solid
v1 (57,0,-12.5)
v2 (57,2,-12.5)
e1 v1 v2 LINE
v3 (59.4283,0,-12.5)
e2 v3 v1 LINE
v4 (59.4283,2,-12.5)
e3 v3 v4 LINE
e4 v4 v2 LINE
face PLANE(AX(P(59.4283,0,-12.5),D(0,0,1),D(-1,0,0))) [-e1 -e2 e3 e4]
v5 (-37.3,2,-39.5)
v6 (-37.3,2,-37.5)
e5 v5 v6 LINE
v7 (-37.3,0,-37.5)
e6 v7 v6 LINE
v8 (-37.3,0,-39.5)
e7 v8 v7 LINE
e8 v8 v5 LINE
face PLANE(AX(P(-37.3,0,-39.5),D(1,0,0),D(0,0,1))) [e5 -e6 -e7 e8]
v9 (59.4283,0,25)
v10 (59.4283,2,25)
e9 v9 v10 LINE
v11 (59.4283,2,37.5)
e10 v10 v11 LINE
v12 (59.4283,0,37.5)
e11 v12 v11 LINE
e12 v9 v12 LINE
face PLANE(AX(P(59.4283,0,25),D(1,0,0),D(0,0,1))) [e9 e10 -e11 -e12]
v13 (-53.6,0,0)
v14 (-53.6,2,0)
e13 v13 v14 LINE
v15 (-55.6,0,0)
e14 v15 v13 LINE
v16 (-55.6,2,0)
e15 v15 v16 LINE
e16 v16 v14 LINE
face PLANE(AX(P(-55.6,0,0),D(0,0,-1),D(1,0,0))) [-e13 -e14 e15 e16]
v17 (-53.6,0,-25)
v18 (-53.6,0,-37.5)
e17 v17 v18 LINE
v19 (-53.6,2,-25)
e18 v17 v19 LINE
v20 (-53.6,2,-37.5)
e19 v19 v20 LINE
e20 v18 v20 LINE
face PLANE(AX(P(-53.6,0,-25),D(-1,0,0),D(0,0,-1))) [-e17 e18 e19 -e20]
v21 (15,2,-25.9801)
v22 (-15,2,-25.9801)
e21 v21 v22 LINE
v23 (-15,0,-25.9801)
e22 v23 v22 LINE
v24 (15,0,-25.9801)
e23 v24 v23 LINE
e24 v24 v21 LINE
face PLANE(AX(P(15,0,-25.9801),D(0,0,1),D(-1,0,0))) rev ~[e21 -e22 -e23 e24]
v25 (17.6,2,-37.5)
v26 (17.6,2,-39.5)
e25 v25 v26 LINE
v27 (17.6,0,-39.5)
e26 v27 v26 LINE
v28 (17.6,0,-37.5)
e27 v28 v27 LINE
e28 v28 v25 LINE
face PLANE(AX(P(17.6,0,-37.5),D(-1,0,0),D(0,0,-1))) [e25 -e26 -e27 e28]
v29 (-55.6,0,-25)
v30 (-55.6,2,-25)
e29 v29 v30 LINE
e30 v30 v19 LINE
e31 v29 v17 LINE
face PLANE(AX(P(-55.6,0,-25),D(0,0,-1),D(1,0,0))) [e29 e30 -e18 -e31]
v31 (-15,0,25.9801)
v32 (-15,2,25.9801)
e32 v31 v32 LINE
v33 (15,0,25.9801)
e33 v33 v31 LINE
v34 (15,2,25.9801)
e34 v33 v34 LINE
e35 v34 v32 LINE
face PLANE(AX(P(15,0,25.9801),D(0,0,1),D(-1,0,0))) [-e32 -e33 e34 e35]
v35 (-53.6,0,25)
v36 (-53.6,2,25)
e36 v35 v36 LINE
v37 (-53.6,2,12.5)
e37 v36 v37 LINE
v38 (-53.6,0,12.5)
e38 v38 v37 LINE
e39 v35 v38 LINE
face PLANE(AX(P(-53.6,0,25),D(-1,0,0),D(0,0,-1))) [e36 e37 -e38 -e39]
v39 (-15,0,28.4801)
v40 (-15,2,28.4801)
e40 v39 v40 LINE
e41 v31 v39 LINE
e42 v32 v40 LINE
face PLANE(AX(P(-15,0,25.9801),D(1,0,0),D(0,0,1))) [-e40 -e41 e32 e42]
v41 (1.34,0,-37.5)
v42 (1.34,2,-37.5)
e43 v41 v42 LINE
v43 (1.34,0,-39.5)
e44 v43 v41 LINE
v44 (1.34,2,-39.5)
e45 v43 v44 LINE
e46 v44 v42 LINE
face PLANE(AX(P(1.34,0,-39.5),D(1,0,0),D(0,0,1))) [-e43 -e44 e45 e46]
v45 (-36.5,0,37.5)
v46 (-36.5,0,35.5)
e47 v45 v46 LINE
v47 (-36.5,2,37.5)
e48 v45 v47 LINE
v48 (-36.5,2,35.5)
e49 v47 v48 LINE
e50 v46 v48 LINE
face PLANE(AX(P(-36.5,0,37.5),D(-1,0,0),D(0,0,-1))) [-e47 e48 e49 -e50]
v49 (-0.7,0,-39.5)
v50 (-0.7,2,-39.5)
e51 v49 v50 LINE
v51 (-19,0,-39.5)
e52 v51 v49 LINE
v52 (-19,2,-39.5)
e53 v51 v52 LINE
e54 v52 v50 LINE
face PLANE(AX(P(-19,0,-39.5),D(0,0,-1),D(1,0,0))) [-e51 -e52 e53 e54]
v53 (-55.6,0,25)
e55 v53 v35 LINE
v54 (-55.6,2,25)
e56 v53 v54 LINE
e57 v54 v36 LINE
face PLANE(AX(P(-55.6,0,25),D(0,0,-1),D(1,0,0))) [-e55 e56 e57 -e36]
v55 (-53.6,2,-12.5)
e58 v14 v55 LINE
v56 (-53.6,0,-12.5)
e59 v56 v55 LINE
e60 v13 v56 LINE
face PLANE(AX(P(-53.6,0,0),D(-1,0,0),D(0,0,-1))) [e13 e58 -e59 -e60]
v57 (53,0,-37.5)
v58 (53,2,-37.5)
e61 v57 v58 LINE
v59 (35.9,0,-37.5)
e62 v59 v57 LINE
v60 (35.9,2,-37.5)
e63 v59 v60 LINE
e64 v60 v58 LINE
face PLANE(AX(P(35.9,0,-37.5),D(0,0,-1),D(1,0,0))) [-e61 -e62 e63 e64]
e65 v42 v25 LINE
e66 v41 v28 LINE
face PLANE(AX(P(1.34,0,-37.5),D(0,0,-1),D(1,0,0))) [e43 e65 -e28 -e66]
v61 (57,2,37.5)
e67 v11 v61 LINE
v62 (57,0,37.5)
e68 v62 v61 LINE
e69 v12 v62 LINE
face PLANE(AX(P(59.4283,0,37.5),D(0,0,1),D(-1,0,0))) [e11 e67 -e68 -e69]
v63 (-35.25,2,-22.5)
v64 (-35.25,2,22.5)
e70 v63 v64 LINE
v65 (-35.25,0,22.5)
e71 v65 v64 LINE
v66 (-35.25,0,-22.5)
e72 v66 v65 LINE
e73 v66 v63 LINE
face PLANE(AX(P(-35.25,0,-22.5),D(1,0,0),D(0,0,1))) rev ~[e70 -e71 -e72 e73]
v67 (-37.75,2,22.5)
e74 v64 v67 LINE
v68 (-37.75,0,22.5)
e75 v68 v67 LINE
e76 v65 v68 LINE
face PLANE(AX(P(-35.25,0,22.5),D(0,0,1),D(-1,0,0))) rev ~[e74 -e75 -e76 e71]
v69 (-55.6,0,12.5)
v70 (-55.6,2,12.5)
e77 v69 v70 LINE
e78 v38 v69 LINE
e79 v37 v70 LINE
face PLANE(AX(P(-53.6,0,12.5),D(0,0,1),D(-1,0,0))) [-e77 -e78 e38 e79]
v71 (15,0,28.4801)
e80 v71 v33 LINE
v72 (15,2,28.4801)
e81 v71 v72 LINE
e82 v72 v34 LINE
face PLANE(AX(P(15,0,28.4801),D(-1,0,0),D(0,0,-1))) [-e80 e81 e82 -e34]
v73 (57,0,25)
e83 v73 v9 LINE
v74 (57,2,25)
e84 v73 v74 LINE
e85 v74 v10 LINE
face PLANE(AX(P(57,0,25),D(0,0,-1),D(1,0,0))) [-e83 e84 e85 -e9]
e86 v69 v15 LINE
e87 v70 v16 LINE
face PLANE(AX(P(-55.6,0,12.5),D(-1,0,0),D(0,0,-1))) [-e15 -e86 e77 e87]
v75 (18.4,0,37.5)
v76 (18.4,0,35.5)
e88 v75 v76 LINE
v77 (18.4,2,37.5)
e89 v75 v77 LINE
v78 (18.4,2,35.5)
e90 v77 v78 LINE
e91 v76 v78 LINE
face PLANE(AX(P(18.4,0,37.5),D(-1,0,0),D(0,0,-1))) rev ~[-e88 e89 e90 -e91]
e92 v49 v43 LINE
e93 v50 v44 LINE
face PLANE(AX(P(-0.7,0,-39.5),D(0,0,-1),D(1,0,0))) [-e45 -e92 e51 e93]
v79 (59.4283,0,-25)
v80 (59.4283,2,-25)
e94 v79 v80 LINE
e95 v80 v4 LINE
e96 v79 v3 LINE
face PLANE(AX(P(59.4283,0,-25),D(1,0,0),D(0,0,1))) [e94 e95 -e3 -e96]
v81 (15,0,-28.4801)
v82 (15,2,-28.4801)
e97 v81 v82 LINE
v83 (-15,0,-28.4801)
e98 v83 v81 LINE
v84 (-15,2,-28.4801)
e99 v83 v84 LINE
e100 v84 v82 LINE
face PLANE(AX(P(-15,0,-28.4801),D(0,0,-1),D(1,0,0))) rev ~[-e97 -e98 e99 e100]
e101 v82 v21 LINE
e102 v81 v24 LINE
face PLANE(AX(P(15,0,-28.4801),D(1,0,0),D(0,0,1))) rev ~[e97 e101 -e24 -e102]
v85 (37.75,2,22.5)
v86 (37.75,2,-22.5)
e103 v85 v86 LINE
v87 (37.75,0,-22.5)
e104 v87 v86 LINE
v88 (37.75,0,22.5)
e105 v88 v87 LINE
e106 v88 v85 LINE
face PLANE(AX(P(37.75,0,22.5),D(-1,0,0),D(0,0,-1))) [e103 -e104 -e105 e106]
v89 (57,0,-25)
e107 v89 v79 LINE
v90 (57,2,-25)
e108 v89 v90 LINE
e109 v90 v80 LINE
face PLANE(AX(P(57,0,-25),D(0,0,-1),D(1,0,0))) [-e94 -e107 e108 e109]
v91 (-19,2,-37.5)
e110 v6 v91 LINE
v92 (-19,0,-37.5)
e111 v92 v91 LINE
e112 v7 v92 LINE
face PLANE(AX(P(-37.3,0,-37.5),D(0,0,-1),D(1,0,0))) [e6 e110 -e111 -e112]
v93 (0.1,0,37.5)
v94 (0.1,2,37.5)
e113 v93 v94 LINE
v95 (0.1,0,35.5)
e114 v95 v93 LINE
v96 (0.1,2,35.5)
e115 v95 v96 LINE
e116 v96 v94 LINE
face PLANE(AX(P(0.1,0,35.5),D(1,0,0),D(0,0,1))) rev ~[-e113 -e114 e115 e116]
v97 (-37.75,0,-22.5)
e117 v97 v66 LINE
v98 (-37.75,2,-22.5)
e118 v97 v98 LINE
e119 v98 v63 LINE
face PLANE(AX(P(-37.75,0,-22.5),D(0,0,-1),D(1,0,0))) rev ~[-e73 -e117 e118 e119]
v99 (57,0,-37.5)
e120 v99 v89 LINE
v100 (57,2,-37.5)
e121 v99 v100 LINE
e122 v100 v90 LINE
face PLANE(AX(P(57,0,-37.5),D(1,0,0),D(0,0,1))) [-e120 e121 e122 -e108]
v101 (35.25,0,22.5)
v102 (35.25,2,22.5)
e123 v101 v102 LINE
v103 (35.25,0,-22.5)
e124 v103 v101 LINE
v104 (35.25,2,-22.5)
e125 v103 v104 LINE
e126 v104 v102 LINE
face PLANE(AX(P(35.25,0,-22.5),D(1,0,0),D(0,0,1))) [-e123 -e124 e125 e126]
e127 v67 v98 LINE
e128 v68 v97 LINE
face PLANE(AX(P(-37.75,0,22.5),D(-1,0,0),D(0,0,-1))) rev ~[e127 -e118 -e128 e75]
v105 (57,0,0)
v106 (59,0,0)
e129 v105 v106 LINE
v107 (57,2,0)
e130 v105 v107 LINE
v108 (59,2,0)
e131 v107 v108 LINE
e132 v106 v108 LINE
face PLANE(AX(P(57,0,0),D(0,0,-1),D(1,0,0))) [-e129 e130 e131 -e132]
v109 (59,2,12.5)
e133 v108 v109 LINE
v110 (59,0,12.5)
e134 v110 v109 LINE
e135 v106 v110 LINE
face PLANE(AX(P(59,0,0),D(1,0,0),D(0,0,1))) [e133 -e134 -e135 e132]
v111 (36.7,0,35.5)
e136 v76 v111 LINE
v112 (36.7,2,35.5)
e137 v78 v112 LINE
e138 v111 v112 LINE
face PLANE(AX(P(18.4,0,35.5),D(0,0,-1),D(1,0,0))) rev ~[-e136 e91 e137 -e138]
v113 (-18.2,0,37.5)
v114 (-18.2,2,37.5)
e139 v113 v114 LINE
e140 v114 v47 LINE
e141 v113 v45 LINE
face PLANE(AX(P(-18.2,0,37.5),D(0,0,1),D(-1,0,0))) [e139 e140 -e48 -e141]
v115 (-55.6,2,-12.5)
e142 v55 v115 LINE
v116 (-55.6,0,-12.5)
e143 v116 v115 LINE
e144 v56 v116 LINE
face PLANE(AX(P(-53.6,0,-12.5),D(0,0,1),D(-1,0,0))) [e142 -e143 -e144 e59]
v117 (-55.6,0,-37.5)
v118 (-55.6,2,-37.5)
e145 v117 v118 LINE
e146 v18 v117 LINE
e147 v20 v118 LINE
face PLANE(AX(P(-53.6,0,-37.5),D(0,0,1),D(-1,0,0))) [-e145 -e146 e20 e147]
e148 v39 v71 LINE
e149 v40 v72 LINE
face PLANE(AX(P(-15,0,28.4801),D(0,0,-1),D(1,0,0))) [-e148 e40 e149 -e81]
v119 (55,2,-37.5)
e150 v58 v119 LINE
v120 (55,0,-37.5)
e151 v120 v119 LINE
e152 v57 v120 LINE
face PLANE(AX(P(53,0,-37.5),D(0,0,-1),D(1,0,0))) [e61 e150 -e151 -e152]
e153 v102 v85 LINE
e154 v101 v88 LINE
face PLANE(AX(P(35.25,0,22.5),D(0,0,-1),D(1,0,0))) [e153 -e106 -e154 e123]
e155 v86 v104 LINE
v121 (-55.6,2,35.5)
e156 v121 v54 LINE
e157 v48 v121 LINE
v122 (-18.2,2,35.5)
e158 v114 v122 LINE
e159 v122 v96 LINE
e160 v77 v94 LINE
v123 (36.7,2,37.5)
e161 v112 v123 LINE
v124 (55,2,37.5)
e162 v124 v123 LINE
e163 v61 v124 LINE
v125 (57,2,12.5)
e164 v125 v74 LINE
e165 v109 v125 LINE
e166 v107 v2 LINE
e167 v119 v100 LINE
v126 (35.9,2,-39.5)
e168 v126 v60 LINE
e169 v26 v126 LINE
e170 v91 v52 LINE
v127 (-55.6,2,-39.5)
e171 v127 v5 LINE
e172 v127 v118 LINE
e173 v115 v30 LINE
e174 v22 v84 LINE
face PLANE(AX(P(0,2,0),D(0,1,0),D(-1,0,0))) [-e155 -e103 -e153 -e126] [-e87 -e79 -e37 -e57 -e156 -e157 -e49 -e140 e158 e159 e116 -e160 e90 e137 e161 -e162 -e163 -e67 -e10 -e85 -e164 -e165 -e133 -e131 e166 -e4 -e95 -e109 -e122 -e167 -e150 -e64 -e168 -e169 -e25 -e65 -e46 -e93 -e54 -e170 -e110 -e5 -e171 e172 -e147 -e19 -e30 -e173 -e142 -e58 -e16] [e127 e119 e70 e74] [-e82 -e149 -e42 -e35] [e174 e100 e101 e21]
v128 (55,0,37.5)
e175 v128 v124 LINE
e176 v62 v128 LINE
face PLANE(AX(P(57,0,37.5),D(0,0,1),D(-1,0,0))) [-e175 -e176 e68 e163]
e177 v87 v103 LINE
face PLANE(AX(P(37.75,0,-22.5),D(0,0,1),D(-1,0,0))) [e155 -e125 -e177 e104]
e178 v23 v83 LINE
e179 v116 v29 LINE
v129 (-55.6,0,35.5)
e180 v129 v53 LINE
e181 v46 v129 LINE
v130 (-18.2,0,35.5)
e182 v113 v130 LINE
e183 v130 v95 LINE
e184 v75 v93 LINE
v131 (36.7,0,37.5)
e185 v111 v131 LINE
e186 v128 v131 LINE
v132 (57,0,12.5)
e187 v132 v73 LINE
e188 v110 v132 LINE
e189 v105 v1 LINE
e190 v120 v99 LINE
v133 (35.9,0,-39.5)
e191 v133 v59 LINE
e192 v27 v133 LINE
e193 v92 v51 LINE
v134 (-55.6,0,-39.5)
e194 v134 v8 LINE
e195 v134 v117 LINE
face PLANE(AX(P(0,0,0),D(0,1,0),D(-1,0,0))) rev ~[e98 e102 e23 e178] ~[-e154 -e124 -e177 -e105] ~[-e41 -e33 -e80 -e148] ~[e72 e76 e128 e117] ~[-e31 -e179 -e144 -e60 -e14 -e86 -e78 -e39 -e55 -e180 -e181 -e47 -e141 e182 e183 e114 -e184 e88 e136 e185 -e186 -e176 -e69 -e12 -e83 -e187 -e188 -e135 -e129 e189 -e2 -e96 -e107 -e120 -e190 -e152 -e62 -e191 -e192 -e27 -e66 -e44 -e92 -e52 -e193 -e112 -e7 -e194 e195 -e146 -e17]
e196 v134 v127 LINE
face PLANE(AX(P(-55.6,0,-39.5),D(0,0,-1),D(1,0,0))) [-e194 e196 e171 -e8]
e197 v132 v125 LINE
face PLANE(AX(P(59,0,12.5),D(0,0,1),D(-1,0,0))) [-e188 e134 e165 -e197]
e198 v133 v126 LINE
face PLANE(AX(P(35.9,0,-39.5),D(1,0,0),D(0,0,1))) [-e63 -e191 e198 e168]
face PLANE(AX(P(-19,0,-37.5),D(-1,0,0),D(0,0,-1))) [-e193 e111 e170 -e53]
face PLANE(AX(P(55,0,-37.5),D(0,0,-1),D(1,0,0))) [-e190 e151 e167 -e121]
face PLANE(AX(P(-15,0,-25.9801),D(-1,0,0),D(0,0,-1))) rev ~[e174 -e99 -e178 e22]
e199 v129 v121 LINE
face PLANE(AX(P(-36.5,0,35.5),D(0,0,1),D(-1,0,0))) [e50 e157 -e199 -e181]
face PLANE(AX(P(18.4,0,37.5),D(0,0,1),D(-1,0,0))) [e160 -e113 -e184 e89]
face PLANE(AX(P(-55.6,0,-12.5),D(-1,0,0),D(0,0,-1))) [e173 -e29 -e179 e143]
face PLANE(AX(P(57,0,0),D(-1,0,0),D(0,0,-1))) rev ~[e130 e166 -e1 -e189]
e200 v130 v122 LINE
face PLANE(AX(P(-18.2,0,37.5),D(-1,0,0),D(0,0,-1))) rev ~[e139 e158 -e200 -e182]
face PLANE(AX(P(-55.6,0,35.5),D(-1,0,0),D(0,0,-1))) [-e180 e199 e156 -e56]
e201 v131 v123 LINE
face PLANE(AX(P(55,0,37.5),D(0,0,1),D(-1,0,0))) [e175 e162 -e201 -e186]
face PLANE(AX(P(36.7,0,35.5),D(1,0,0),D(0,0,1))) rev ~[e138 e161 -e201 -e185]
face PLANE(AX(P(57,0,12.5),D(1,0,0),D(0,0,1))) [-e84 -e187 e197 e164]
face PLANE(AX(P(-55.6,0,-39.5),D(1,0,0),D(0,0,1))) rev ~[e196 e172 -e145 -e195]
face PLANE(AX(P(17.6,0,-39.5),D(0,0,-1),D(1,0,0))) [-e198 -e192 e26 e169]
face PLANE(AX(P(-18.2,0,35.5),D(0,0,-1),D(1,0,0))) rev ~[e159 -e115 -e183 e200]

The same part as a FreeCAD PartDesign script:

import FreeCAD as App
import Part
import Sketcher
from FreeCAD import Vector


def add_polygon(sketch, points):
    """Adds a closed chain of lines whose ends are joined by coincident constraints."""
    first, n = sketch.GeometryCount, len(points)
    for a, b in zip(points, points[1:] + points[:1]):
        sketch.addGeometry(Part.LineSegment(App.Vector(*a, 0), App.Vector(*b, 0)), False)
    for i in range(n):
        sketch.addConstraint(Sketcher.Constraint("Coincident", first + i, 2, first + (i + 1) % n, 1))

doc = App.newDocument("Part")
body = doc.addObject("PartDesign::Body", "Body")

sketch1 = doc.addObject("Sketcher::SketchObject", "Sketch")
body.addObject(sketch1)
sketch1.AttachmentSupport = (doc.XZ_Plane, [""])
sketch1.MapMode = "FlatFace"
add_polygon(sketch1, [(-37.3, -39.5), (-55.6, -39.5), (-55.6, -37.5), (-53.6, -37.5), (-53.6, -25), (-55.6, -25), (-55.6, -12.5), (-53.6, -12.5), (-53.6, 0), (-55.6, 0), (-55.6, 12.5), (-53.6, 12.5), (-53.6, 25), (-55.6, 25), (-55.6, 35.5), (-36.5, 35.5), (-36.5, 37.5), (-18.2, 37.5), (-18.2, 35.5), (0.1, 35.5), (0.1, 37.5), (18.4, 37.5), (18.4, 35.5), (36.7, 35.5), (36.7, 37.5), (59.4, 37.5), (59.4, 25), (57, 25), (57, 12.5), (59, 12.5), (59, 0), (57, 0), (57, -12.5), (59.4, -12.5), (59.4, -25), (57, -25), (57, -37.5), (35.9, -37.5), (35.9, -39.5), (17.6, -39.5), (17.6, -37.5), (1.3, -37.5), (1.3, -39.5), (-19, -39.5), (-19, -37.5), (-37.3, -37.5)])
add_polygon(sketch1, [(-15, -26), (-15, -28.5), (15, -28.5), (15, -26)])
add_polygon(sketch1, [(35.2, -22.5), (37.8, -22.5), (37.8, 22.5), (35.2, 22.5)])
add_polygon(sketch1, [(-37.8, 22.5), (-37.8, -22.5), (-35.2, -22.5), (-35.2, 22.5)])
add_polygon(sketch1, [(15, 28.5), (-15, 28.5), (-15, 26), (15, 26)])
sketch1.addConstraint(Sketcher.Constraint("Horizontal", 0))
sketch1.addConstraint(Sketcher.Constraint("Vertical", 1))
sketch1.addConstraint(Sketcher.Constraint("Horizontal", 2))
sketch1.addConstraint(Sketcher.Constraint("Vertical", 3))
sketch1.addConstraint(Sketcher.Constraint("Horizontal", 4))
sketch1.addConstraint(Sketcher.Constraint("Vertical", 5))
sketch1.addConstraint(Sketcher.Constraint("Horizontal", 6))
sketch1.addConstraint(Sketcher.Constraint("Vertical", 7))
sketch1.addConstraint(Sketcher.Constraint("Horizontal", 8))
sketch1.addConstraint(Sketcher.Constraint("Vertical", 9))
sketch1.addConstraint(Sketcher.Constraint("Horizontal", 10))
sketch1.addConstraint(Sketcher.Constraint("Vertical", 11))
sketch1.addConstraint(Sketcher.Constraint("Horizontal", 12))
sketch1.addConstraint(Sketcher.Constraint("Vertical", 13))
sketch1.addConstraint(Sketcher.Constraint("Horizontal", 14))
sketch1.addConstraint(Sketcher.Constraint("Vertical", 15))
sketch1.addConstraint(Sketcher.Constraint("Horizontal", 16))
sketch1.addConstraint(Sketcher.Constraint("Vertical", 17))
sketch1.addConstraint(Sketcher.Constraint("Horizontal", 18))
sketch1.addConstraint(Sketcher.Constraint("Vertical", 19))
sketch1.addConstraint(Sketcher.Constraint("Horizontal", 20))
sketch1.addConstraint(Sketcher.Constraint("Vertical", 21))
sketch1.addConstraint(Sketcher.Constraint("Horizontal", 22))
sketch1.addConstraint(Sketcher.Constraint("Vertical", 23))
sketch1.addConstraint(Sketcher.Constraint("Horizontal", 24))
sketch1.addConstraint(Sketcher.Constraint("Vertical", 25))
sketch1.addConstraint(Sketcher.Constraint("Horizontal", 26))
sketch1.addConstraint(Sketcher.Constraint("Vertical", 27))
sketch1.addConstraint(Sketcher.Constraint("Horizontal", 28))
sketch1.addConstraint(Sketcher.Constraint("Vertical", 29))
sketch1.addConstraint(Sketcher.Constraint("Horizontal", 30))
sketch1.addConstraint(Sketcher.Constraint("Vertical", 31))
sketch1.addConstraint(Sketcher.Constraint("Horizontal", 32))
sketch1.addConstraint(Sketcher.Constraint("Vertical", 33))
sketch1.addConstraint(Sketcher.Constraint("Horizontal", 34))
sketch1.addConstraint(Sketcher.Constraint("Vertical", 35))
sketch1.addConstraint(Sketcher.Constraint("Horizontal", 36))
sketch1.addConstraint(Sketcher.Constraint("Vertical", 37))
sketch1.addConstraint(Sketcher.Constraint("Horizontal", 38))
sketch1.addConstraint(Sketcher.Constraint("Vertical", 39))
sketch1.addConstraint(Sketcher.Constraint("Horizontal", 40))
sketch1.addConstraint(Sketcher.Constraint("Vertical", 41))
sketch1.addConstraint(Sketcher.Constraint("Horizontal", 42))
sketch1.addConstraint(Sketcher.Constraint("Vertical", 43))
sketch1.addConstraint(Sketcher.Constraint("Horizontal", 44))
sketch1.addConstraint(Sketcher.Constraint("Vertical", 45))
sketch1.addConstraint(Sketcher.Constraint("Vertical", 46))
sketch1.addConstraint(Sketcher.Constraint("Horizontal", 47))
sketch1.addConstraint(Sketcher.Constraint("Vertical", 48))
sketch1.addConstraint(Sketcher.Constraint("Horizontal", 49))
sketch1.addConstraint(Sketcher.Constraint("Horizontal", 50))
sketch1.addConstraint(Sketcher.Constraint("Vertical", 51))
sketch1.addConstraint(Sketcher.Constraint("Horizontal", 52))
sketch1.addConstraint(Sketcher.Constraint("Vertical", 53))
sketch1.addConstraint(Sketcher.Constraint("Vertical", 54))
sketch1.addConstraint(Sketcher.Constraint("Horizontal", 55))
sketch1.addConstraint(Sketcher.Constraint("Vertical", 56))
sketch1.addConstraint(Sketcher.Constraint("Horizontal", 57))
sketch1.addConstraint(Sketcher.Constraint("Horizontal", 58))
sketch1.addConstraint(Sketcher.Constraint("Vertical", 59))
sketch1.addConstraint(Sketcher.Constraint("Horizontal", 60))
sketch1.addConstraint(Sketcher.Constraint("Vertical", 61))
sketch1.addConstraint(Sketcher.Constraint("Symmetric", 51, 2, 54, 2, -1, 1))
sketch1.addConstraint(Sketcher.Constraint("Symmetric", 53, 2, 56, 2, -1, 1))
sketch1.addConstraint(Sketcher.Constraint("Symmetric", 47, 2, 58, 2, -1, 1))
sketch1.addConstraint(Sketcher.Constraint("Symmetric", 49, 2, 60, 2, -1, 1))
sketch1.addConstraint(Sketcher.Constraint("Symmetric", 5, 2, 9, 2, -1))
sketch1.addConstraint(Sketcher.Constraint("Symmetric", 3, 2, 11, 2, -1))
sketch1.addConstraint(Sketcher.Constraint("Symmetric", 27, 2, 31, 2, -1))
sketch1.addConstraint(Sketcher.Constraint("Symmetric", 25, 2, 33, 2, -1))
sketch1.addConstraint(Sketcher.Constraint("PointOnObject", 7, 2, -1))
sketch1.addConstraint(Sketcher.Constraint("PointOnObject", 29, 2, -1))
sketch1.addConstraint(Sketcher.Constraint("Horizontal", 14, 2, 17, 2))
sketch1.addConstraint(Sketcher.Constraint("Horizontal", 16, 2, 19, 2))
sketch1.addConstraint(Sketcher.Constraint("Horizontal", 18, 2, 21, 2))
sketch1.addConstraint(Sketcher.Constraint("Horizontal", 20, 2, 23, 2))
sketch1.addConstraint(Sketcher.Constraint("Horizontal", 12, 2, 25, 2))
sketch1.addConstraint(Sketcher.Constraint("Horizontal", 10, 2, 27, 2))
sketch1.addConstraint(Sketcher.Constraint("Horizontal", 2, 2, 35, 2))
sketch1.addConstraint(Sketcher.Constraint("Horizontal", 0, 2, 37, 2))
sketch1.addConstraint(Sketcher.Constraint("Horizontal", 36, 2, 39, 2))
sketch1.addConstraint(Sketcher.Constraint("Horizontal", 38, 2, 41, 2))
sketch1.addConstraint(Sketcher.Constraint("Horizontal", 40, 2, 43, 2))
sketch1.addConstraint(Sketcher.Constraint("Horizontal", 53, 2, 54, 2))
sketch1.addConstraint(Sketcher.Constraint("Vertical", 1, 2, 4, 2))
sketch1.addConstraint(Sketcher.Constraint("Vertical", 3, 2, 6, 2))
sketch1.addConstraint(Sketcher.Constraint("Vertical", 9, 2, 12, 2))
sketch1.addConstraint(Sketcher.Constraint("Vertical", 31, 2, 34, 2))
sketch1.addConstraint(Sketcher.Constraint("Vertical", 49, 2, 58, 2))
sketch1.addConstraint(Sketcher.Constraint("Equal", 0, 16))
sketch1.addConstraint(Sketcher.Constraint("Equal", 16, 18))
sketch1.addConstraint(Sketcher.Constraint("Equal", 18, 20))
sketch1.addConstraint(Sketcher.Constraint("Equal", 20, 22))
sketch1.addConstraint(Sketcher.Constraint("Equal", 12, 28))
sketch1.addConstraint(Sketcher.Constraint("Equal", 22, 38))
sketch1.addConstraint(Sketcher.Constraint("Equal", 38, 44))
sketch1.addConstraint(Sketcher.Constraint("Equal", 30, 1))
sketch1.addConstraint(Sketcher.Constraint("Equal", 3, 5))
sketch1.addConstraint(Sketcher.Constraint("Equal", 5, 7))
sketch1.addConstraint(Sketcher.Constraint("Equal", 1, 15))
sketch1.addConstraint(Sketcher.Constraint("Equal", 11, 25))
sketch1.addConstraint(Sketcher.Constraint("Equal", 57, 46))
sketch1.addConstraint(Sketcher.Constraint("DistanceX", 0, 2, 0, 1, 18.3))
sketch1.addConstraint(Sketcher.Constraint("DistanceX", 2, 1, 2, 2, 2.0))
sketch1.addConstraint(Sketcher.Constraint("DistanceX", 47, 1, 47, 2, 30.0))
sketch1.addConstraint(Sketcher.Constraint("DistanceY", 51, 1, 51, 2, 45.0))
sketch1.addConstraint(Sketcher.Constraint("DistanceX", 14, 1, 14, 2, 19.1))
sketch1.addConstraint(Sketcher.Constraint("DistanceX", 36, 2, 36, 1, 21.1))
sketch1.addConstraint(Sketcher.Constraint("DistanceX", 50, 1, 50, 2, 2.5))
sketch1.addConstraint(Sketcher.Constraint("DistanceY", 3, 1, 3, 2, 12.5))
sketch1.addConstraint(Sketcher.Constraint("DistanceX", -1, 1, 26, 2, 57.0))
sketch1.addConstraint(Sketcher.Constraint("DistanceX", 42, 2, -1, 1, 19.0))
sketch1.addConstraint(Sketcher.Constraint("DistanceX", 40, 2, 40, 1, 16.26))
sketch1.addConstraint(Sketcher.Constraint("DistanceY", 46, 2, -1, 1, 28.48))
sketch1.addConstraint(Sketcher.Constraint("DistanceX", -1, 1, 50, 2, 37.75))
sketch1.addConstraint(Sketcher.Constraint("DistanceX", 24, 1, 24, 2, 22.7283))
pad1 = doc.addObject("PartDesign::Pad", "Pad")
body.addObject(pad1)
pad1.Profile = sketch1
pad1.Length = 2
pad1.Reversed = True

doc.recompute()
